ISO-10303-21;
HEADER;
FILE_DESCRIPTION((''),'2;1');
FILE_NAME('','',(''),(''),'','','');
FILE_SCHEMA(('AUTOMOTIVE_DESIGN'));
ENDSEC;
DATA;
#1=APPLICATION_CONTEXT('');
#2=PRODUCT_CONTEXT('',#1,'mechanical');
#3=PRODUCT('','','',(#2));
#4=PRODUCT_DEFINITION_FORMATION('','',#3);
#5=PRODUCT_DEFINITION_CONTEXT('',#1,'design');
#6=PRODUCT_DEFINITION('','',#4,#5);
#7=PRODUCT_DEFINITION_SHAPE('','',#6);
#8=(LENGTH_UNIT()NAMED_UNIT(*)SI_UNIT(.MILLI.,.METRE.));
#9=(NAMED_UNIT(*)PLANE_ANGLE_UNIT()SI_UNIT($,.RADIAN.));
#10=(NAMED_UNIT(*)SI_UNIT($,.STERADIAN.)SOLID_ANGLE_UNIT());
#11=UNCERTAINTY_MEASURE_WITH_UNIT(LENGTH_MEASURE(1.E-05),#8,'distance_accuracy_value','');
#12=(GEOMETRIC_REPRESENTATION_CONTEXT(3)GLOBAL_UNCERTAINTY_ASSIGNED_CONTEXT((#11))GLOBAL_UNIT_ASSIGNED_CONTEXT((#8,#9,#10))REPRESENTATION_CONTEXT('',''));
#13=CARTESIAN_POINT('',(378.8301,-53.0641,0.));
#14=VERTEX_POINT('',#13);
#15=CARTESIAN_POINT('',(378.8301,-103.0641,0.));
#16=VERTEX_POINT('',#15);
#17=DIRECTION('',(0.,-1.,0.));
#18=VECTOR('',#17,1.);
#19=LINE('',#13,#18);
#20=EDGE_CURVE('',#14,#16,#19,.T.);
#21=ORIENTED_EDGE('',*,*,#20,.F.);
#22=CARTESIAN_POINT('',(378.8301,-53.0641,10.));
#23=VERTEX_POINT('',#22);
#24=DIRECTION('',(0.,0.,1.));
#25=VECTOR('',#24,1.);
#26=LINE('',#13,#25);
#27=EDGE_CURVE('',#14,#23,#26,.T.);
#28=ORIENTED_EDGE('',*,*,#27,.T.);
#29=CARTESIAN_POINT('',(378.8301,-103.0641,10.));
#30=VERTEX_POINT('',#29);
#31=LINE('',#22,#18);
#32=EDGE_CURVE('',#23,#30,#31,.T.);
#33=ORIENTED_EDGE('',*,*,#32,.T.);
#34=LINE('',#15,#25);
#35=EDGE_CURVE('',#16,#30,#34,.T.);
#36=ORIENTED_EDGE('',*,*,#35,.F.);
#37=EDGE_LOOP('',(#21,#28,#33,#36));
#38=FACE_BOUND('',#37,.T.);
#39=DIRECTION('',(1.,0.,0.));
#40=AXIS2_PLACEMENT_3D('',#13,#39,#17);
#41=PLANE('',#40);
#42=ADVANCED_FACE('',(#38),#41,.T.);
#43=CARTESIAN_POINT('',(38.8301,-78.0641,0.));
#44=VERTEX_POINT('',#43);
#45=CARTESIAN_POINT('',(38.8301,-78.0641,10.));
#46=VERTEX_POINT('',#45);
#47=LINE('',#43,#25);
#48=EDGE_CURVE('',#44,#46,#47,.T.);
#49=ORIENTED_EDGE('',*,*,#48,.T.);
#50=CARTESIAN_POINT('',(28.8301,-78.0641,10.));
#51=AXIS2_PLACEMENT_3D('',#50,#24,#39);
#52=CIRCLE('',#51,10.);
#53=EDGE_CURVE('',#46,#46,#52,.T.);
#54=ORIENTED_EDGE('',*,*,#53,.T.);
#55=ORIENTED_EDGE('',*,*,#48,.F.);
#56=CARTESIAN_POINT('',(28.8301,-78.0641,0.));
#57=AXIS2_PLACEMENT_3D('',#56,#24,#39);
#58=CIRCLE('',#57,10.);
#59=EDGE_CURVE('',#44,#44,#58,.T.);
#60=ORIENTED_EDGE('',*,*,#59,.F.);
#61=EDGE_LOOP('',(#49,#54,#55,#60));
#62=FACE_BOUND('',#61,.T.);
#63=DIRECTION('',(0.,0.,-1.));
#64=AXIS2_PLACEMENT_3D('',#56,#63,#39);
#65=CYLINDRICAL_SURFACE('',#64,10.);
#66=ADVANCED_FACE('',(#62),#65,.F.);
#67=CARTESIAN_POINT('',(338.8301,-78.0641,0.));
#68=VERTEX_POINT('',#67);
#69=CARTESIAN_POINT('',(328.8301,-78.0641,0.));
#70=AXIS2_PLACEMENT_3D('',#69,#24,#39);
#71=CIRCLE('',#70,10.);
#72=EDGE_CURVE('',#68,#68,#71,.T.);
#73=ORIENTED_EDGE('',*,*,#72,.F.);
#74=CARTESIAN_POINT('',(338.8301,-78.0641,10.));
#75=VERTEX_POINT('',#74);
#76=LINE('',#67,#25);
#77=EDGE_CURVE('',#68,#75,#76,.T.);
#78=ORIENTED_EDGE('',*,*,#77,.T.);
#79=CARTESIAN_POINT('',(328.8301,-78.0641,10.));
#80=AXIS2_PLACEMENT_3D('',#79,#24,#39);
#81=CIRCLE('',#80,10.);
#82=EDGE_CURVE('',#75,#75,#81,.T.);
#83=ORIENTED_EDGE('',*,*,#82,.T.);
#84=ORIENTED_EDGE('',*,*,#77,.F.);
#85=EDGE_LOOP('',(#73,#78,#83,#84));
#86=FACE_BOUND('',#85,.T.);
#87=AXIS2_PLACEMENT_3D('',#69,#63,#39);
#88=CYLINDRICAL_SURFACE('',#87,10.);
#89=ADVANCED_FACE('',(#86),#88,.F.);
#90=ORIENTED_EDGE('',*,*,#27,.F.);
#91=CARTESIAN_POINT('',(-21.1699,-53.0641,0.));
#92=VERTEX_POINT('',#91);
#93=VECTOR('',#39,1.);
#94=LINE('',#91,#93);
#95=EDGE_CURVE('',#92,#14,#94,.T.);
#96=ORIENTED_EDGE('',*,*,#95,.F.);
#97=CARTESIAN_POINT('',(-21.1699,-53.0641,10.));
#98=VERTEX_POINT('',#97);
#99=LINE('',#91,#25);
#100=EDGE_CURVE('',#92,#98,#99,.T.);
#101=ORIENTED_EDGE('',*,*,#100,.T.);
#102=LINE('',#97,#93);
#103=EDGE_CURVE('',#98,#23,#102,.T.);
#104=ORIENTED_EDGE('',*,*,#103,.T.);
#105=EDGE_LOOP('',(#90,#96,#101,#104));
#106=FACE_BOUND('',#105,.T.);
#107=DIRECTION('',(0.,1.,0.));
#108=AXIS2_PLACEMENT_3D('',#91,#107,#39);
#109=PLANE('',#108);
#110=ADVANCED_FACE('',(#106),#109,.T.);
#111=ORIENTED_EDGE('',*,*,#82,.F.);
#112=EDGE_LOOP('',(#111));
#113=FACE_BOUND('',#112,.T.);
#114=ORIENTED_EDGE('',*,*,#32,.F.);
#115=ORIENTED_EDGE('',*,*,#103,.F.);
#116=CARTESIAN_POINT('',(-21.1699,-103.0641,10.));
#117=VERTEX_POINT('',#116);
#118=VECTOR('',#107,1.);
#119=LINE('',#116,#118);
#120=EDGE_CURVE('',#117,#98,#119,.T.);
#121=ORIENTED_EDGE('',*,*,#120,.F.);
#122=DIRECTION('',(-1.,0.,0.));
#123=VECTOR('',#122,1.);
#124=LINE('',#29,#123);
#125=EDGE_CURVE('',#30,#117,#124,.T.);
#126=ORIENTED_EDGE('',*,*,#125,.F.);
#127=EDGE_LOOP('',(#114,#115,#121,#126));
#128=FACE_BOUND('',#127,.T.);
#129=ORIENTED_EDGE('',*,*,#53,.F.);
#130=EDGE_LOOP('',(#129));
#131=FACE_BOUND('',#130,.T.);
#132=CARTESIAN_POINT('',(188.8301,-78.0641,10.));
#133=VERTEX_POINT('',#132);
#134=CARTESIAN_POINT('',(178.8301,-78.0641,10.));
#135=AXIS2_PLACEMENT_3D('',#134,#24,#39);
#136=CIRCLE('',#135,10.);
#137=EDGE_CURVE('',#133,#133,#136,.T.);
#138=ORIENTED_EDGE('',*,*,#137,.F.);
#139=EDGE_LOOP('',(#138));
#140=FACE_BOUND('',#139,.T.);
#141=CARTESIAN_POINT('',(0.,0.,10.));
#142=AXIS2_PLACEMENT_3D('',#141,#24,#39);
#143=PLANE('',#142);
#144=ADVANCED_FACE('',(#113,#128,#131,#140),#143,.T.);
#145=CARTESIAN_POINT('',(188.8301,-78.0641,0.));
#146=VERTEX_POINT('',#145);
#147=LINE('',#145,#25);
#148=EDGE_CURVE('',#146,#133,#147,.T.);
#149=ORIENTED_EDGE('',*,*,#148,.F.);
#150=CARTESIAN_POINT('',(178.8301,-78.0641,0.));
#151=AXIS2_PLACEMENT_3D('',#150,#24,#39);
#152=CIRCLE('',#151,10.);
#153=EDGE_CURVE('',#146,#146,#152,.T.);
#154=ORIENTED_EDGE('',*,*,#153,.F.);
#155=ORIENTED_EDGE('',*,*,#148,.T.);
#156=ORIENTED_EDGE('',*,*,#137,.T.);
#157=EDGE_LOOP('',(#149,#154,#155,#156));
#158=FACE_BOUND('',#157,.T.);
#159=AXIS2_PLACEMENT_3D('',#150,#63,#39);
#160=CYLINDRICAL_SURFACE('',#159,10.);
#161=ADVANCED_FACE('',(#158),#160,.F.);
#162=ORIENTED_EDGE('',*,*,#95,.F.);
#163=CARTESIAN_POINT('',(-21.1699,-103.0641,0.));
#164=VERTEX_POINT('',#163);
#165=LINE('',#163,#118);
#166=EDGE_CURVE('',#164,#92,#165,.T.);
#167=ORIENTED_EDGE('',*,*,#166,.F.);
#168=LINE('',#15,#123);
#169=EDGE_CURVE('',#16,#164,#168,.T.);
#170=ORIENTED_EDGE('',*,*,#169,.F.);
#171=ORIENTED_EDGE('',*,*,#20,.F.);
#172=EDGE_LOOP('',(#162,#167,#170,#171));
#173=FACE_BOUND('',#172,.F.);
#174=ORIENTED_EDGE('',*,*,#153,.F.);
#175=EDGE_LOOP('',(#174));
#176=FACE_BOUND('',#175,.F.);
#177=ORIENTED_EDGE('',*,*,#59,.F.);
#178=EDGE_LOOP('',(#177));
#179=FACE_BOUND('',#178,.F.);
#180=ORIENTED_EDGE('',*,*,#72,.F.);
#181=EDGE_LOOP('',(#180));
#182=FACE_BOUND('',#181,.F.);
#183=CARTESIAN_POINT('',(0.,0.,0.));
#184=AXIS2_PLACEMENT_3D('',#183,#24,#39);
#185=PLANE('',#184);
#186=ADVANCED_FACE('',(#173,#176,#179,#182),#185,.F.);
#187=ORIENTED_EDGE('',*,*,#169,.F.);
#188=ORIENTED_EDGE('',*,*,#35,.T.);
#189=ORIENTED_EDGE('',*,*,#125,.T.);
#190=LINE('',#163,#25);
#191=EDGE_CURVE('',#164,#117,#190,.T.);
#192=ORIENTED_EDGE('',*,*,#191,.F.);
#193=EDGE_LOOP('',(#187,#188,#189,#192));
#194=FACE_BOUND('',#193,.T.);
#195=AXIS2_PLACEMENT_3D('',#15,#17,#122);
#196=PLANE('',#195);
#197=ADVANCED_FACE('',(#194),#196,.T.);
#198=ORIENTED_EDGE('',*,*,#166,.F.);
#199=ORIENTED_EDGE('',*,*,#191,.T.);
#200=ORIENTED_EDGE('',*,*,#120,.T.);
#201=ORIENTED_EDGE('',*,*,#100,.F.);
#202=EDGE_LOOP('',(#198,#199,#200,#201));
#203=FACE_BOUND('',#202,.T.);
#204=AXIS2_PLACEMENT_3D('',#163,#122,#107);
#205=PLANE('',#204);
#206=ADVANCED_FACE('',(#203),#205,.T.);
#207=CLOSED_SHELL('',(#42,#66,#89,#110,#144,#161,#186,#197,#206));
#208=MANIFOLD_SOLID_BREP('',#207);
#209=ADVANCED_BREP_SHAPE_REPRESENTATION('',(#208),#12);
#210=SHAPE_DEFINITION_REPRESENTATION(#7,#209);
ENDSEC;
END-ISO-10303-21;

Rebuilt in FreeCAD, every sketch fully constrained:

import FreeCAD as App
import Part
import Sketcher

V = App.Vector
Q = App.Units.Quantity

doc = App.newDocument("Part")
body = doc.addObject("PartDesign::Body", "Body")

# Sketch on XY plane
sketch1 = body.newObject("Sketcher::SketchObject", "Sketch")
sketch1.AttachmentSupport = (doc.getObject("XY_Plane"), [""])
sketch1.MapMode = "FlatFace"
sketch1.addGeometry([
    Part.LineSegment(V(379, -53, 0), V(-21, -53, 0)),  # 0
    Part.LineSegment(V(-21, -53, 0), V(-21, -103, 0)),  # 1
    Part.LineSegment(V(-21, -103, 0), V(379, -103, 0)),  # 2
    Part.LineSegment(V(379, -103, 0), V(379, -53, 0)),  # 3
    Part.Circle(V(29, -78, 0), V(0, 0, 1), 10),  # 4
    Part.Circle(V(179, -78, 0), V(0, 0, 1), 10),  # 5
    Part.Circle(V(329, -78, 0), V(0, 0, 1), 10),  # 6
], False)
sketch1.addConstraint([
    Sketcher.Constraint("Coincident", 0, 2, 1, 1),
    Sketcher.Constraint("Coincident", 1, 2, 2, 1),
    Sketcher.Constraint("Coincident", 2, 2, 3, 1),
    Sketcher.Constraint("Coincident", 3, 2, 0, 1),
    Sketcher.Constraint("Horizontal", 0),
    Sketcher.Constraint("Vertical", 1),
    Sketcher.Constraint("Horizontal", 2),
    Sketcher.Constraint("Vertical", 3),
    Sketcher.Constraint("Equal", 4, 5),
    Sketcher.Constraint("Equal", 5, 6),
    Sketcher.Constraint("Horizontal", 4, 3, 5, 3),
    Sketcher.Constraint("Horizontal", 5, 3, 6, 3),
    Sketcher.Constraint("Diameter", 4, Q("20 mm")),
    Sketcher.Constraint("DistanceX", 0, 2, 0, 1, Q("400 mm")),
    Sketcher.Constraint("DistanceY", 1, 2, 1, 1, Q("50 mm")),
    Sketcher.Constraint("DistanceX", 4, 3, 5, 3, Q("150 mm")),
    Sketcher.Constraint("DistanceX", 5, 3, 6, 3, Q("150 mm")),
    Sketcher.Constraint("DistanceX", 0, 2, 4, 3, Q("50 mm")),
    Sketcher.Constraint("DistanceY", 4, 3, 0, 2, Q("25 mm")),
    Sketcher.Constraint("DistanceX", -1, 1, 4, 3, Q("28.83 mm")),
    Sketcher.Constraint("DistanceY", 4, 3, -1, 1, Q("78.064 mm")),
])
pad1 = body.newObject("PartDesign::Pad", "Pad")
pad1.Profile = sketch1
pad1.Length = 10

doc.recompute()
